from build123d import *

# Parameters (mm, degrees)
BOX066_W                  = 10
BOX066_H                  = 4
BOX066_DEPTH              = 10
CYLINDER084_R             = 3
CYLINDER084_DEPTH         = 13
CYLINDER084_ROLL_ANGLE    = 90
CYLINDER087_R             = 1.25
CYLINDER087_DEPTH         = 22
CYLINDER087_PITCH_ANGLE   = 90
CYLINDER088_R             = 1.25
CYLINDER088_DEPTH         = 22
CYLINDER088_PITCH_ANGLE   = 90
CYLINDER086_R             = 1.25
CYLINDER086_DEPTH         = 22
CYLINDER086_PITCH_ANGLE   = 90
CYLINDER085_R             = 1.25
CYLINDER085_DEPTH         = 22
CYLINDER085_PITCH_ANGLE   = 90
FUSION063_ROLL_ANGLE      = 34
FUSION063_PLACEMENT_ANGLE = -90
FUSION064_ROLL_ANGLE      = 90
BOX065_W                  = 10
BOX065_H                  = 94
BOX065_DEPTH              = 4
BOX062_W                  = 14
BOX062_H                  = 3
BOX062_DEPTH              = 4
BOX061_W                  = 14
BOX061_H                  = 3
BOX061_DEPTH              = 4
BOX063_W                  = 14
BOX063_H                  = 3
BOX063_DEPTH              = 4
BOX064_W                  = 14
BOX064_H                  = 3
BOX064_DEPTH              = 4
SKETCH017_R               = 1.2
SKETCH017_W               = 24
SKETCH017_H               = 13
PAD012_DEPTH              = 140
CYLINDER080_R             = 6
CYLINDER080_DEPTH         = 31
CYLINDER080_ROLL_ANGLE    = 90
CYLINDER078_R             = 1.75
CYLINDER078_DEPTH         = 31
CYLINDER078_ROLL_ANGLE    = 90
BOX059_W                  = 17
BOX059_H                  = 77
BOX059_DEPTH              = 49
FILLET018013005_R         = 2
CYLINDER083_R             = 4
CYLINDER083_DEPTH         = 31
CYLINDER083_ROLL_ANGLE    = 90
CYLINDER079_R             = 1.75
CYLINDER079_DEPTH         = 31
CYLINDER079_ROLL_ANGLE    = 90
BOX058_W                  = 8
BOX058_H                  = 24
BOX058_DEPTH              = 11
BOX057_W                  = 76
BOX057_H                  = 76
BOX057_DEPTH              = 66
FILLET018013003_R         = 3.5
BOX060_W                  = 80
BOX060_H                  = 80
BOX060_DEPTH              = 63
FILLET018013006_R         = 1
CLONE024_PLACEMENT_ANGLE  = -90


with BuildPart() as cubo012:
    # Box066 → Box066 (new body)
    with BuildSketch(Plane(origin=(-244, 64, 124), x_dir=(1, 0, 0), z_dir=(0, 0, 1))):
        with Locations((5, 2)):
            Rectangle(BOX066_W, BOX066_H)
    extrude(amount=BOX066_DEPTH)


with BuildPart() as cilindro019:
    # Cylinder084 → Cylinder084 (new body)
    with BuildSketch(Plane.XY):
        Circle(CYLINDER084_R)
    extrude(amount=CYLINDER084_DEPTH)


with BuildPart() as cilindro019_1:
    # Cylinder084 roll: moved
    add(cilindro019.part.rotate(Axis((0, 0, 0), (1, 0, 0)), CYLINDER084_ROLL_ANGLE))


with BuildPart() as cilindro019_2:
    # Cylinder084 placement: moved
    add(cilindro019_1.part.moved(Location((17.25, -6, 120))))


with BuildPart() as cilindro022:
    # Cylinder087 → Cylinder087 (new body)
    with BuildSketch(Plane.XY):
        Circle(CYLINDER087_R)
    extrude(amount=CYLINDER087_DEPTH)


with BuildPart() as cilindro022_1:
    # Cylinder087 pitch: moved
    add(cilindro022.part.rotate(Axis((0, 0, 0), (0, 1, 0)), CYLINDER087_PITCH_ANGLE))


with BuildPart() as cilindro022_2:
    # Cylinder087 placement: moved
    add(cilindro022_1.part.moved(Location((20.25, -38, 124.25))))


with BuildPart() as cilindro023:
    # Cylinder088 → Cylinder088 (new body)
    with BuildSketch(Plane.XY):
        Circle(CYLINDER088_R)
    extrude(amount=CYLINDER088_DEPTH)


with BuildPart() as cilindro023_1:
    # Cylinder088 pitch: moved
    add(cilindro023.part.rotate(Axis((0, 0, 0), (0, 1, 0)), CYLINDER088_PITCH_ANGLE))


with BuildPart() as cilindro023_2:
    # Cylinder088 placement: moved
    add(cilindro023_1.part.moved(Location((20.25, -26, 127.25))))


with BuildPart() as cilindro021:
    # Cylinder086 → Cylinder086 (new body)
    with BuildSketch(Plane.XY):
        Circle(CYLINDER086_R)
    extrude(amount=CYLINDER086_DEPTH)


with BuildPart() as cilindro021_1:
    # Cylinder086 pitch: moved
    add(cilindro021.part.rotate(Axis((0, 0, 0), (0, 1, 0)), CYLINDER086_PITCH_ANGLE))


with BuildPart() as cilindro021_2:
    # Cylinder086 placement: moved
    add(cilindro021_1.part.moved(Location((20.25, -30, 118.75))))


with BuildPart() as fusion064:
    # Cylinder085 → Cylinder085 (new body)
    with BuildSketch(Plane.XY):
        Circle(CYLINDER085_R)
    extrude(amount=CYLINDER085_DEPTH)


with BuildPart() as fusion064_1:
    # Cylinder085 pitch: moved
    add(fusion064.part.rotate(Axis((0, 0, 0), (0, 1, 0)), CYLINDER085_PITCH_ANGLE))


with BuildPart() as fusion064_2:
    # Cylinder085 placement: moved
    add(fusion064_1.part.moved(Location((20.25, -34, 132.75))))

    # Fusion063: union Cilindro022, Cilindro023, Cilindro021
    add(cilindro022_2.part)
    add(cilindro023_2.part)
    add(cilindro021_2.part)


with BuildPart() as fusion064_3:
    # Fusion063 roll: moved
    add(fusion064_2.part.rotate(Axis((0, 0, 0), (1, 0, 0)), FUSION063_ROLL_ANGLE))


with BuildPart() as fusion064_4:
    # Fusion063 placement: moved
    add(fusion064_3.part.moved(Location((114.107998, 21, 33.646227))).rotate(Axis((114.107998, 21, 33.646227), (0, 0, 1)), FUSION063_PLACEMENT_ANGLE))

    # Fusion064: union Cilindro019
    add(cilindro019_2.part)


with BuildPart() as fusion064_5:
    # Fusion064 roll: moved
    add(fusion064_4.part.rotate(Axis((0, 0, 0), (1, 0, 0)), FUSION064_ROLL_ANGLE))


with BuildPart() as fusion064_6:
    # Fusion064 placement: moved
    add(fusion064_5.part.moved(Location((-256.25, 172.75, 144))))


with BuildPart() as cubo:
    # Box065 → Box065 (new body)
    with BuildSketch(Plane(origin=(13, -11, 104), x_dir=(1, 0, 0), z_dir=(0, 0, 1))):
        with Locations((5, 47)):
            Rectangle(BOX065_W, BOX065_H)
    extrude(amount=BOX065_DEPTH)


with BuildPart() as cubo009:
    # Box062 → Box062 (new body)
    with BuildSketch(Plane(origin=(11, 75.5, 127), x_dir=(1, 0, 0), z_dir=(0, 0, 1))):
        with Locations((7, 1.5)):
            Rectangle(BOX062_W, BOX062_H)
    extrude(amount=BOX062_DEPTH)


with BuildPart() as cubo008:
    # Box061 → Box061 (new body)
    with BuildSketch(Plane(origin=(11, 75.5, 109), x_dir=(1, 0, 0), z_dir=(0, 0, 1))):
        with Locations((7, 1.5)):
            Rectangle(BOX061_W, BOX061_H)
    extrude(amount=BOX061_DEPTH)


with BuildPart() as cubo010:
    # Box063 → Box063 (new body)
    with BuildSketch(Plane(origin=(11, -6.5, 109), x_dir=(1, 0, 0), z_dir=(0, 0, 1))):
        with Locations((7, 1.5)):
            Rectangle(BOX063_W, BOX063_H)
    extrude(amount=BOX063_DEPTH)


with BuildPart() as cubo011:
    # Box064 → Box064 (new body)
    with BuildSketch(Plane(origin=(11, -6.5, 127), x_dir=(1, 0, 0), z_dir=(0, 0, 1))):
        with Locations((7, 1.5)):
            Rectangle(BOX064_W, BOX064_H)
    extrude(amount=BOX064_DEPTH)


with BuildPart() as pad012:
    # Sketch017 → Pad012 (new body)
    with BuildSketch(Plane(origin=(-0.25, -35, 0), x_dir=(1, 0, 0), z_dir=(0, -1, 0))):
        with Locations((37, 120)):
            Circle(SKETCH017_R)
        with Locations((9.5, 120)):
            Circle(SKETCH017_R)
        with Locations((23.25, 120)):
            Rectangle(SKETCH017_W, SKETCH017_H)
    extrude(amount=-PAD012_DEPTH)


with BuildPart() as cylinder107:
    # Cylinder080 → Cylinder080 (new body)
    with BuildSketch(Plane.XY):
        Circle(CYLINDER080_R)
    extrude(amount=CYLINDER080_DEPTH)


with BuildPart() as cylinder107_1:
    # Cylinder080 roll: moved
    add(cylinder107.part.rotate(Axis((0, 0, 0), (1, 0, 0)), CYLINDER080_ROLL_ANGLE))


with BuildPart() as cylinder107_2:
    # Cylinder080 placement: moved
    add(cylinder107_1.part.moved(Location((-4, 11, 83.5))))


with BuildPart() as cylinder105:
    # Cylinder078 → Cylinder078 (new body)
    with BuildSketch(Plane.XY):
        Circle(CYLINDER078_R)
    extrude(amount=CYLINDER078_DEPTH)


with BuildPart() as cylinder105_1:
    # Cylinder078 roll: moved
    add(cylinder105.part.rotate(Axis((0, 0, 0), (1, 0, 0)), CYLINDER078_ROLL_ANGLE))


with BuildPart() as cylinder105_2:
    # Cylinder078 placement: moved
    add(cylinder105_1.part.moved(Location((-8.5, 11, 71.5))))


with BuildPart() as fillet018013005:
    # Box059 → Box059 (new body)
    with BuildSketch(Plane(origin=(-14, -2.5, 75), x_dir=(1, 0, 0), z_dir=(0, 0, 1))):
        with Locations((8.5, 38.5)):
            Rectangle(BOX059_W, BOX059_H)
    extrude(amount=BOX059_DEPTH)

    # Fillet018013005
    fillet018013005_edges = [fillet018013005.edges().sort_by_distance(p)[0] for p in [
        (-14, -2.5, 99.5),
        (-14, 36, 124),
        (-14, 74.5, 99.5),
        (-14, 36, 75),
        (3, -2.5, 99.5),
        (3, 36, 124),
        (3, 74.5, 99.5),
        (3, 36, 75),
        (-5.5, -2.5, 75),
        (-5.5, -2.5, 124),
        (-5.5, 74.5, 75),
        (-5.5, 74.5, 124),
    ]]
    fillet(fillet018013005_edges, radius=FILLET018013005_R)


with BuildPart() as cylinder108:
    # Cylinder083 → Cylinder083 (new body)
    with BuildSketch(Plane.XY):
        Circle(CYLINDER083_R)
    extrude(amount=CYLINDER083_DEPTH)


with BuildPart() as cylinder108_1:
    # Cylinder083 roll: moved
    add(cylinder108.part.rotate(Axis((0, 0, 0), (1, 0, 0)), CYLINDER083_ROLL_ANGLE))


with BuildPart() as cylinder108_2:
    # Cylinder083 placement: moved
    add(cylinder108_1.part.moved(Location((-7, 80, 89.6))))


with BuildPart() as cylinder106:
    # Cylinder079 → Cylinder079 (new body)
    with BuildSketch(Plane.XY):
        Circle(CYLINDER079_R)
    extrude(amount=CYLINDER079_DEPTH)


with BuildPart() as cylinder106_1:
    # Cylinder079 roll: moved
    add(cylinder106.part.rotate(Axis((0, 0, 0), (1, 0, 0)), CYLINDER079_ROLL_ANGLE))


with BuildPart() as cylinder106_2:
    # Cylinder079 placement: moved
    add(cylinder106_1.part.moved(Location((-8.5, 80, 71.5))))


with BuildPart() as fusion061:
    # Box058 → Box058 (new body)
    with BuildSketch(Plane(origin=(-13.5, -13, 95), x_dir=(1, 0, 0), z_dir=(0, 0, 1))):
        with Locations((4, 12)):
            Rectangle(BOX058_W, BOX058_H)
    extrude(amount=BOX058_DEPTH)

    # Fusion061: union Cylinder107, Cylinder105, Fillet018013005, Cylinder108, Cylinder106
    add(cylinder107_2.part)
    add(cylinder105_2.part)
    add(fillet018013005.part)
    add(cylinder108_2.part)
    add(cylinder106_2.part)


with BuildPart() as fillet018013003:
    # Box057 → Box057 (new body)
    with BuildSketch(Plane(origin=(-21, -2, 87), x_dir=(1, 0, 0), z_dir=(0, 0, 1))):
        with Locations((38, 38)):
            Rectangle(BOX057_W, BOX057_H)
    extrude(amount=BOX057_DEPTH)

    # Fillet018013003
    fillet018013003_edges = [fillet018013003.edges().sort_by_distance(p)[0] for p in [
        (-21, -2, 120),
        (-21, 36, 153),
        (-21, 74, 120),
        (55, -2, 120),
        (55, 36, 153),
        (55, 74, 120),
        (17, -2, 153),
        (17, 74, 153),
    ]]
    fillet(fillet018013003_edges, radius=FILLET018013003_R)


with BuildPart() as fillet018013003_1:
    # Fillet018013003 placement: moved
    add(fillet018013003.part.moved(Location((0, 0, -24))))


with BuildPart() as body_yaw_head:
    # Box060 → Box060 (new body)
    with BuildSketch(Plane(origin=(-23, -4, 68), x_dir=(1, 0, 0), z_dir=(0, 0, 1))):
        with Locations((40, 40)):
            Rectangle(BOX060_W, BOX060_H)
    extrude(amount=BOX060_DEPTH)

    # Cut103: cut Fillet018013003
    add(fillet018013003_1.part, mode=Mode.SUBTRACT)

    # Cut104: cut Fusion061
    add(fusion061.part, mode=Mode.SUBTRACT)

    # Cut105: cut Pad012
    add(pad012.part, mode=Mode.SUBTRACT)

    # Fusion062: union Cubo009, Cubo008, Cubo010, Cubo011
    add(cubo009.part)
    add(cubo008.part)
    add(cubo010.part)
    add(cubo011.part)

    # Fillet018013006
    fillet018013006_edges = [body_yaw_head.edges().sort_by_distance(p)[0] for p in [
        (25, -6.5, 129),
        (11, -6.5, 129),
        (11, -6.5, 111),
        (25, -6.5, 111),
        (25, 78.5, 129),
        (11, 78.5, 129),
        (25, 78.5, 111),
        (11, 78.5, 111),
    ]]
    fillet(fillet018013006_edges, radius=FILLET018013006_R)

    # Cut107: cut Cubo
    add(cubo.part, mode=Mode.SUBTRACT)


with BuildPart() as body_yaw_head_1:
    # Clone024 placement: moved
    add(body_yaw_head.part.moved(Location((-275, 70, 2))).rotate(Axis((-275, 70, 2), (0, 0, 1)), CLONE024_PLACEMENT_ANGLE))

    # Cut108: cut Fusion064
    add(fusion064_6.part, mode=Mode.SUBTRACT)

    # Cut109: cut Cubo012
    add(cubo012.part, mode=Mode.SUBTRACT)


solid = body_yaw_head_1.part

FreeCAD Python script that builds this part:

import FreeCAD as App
import Part
import Sketcher
from FreeCAD import Vector


def edges_at(feature, points):
    """Names of the edges that pass closest to the given points."""
    edges = feature.Shape.Edges
    near = lambda p: min(range(len(edges)), key=lambda i: edges[i].distToShape(Part.Vertex(*p))[0])
    return sorted({f"Edge{near(p) + 1}" for p in points})


def add_polygon(sketch, points):
    """Adds a closed chain of lines whose ends are joined by coincident constraints."""
    first, n = sketch.GeometryCount, len(points)
    for a, b in zip(points, points[1:] + points[:1]):
        sketch.addGeometry(Part.LineSegment(App.Vector(*a, 0), App.Vector(*b, 0)), False)
    for i in range(n):
        sketch.addConstraint(Sketcher.Constraint("Coincident", first + i, 2, first + (i + 1) % n, 1))

doc = App.newDocument("Part")
body = doc.addObject("PartDesign::Body", "Body")

# Sketch on XY plane
sketch1 = body.newObject("Sketcher::SketchObject", "Sketch")
sketch1.AttachmentSupport = (doc.getObject("XY_Plane"), [""])
sketch1.MapMode = "FlatFace"
sketch1.AttachmentOffset = App.Placement(Vector(0, 0, 124), App.Rotation())
add_polygon(sketch1, [(-244, 68), (-244, 64), (-234, 64), (-234, 68)])  # lines 0-3
sketch1.addConstraint(Sketcher.Constraint("Vertical", 0))
sketch1.addConstraint(Sketcher.Constraint("Horizontal", 1))
sketch1.addConstraint(Sketcher.Constraint("Vertical", 2))
sketch1.addConstraint(Sketcher.Constraint("Horizontal", 3))
sketch1.addConstraint(Sketcher.Constraint("DistanceX", 1, 1, 1, 2, 10.0))
sketch1.addConstraint(Sketcher.Constraint("DistanceY", 0, 2, 0, 1, 4.0))
sketch1.addConstraint(Sketcher.Constraint("DistanceX", 0, 2, -1, 1, 244.0))
sketch1.addConstraint(Sketcher.Constraint("DistanceY", -1, 1, 0, 2, 64.0))
pad1 = body.newObject("PartDesign::Pad", "Pad")
pad1.Profile = sketch1
pad1.Length = 10
body2 = doc.addObject("PartDesign::Body", "Body001")

# Sketch on XY plane
sketch2 = body2.newObject("Sketcher::SketchObject", "Sketch001")
sketch2.AttachmentSupport = (doc.getObject("XY_Plane001"), [""])
sketch2.MapMode = "FlatFace"
sketch2.addGeometry(Part.Circle(Vector(0, 0, 0), Vector(0, 0, 1), 3), False)
sketch2.addConstraint(Sketcher.Constraint("Coincident", 0, 3, -1, 1))
sketch2.addConstraint(Sketcher.Constraint("Diameter", 0, 6.0))
pad2 = body2.newObject("PartDesign::Pad", "Pad001")
pad2.Profile = sketch2
pad2.Length = 13
body3 = doc.addObject("PartDesign::Body", "Body002")
doc.recompute()

body2.Placement = App.Placement(Vector(0, 0, 0), App.Rotation(Vector(1, 0, 0), 90))
boolean = body3.newObject("PartDesign::Boolean", "Boolean")
boolean.Type = "Fuse"
boolean.addObjects([body2])
body4 = doc.addObject("PartDesign::Body", "Body003")
doc.recompute()

body3.Placement = App.Placement(Vector(17.25, -6, 120), App.Rotation(Vector(0, 0, 1), 0))
boolean2 = body4.newObject("PartDesign::Boolean", "Boolean001")
boolean2.Type = "Fuse"
boolean2.addObjects([body3])
body5 = doc.addObject("PartDesign::Body", "Body004")

# Sketch on XY plane
sketch3 = body5.newObject("Sketcher::SketchObject", "Sketch002")
sketch3.AttachmentSupport = (doc.getObject("XY_Plane004"), [""])
sketch3.MapMode = "FlatFace"
sketch3.addGeometry(Part.Circle(Vector(0, 0, 0), Vector(0, 0, 1), 1.2), False)
sketch3.addConstraint(Sketcher.Constraint("Coincident", 0, 3, -1, 1))
sketch3.addConstraint(Sketcher.Constraint("Diameter", 0, 2.5))
pad3 = body5.newObject("PartDesign::Pad", "Pad002")
pad3.Profile = sketch3
pad3.Length = 22
body6 = doc.addObject("PartDesign::Body", "Body005")
doc.recompute()

body5.Placement = App.Placement(Vector(0, 0, 0), App.Rotation(Vector(0, 1, 0), 90))
boolean3 = body6.newObject("PartDesign::Boolean", "Boolean002")
boolean3.Type = "Fuse"
boolean3.addObjects([body5])
body7 = doc.addObject("PartDesign::Body", "Body006")
doc.recompute()

body6.Placement = App.Placement(Vector(20.25, -38, 124.25), App.Rotation(Vector(0, 0, 1), 0))
boolean4 = body7.newObject("PartDesign::Boolean", "Boolean003")
boolean4.Type = "Fuse"
boolean4.addObjects([body6])
body8 = doc.addObject("PartDesign::Body", "Body007")

# Sketch on XY plane
sketch4 = body8.newObject("Sketcher::SketchObject", "Sketch003")
sketch4.AttachmentSupport = (doc.getObject("XY_Plane007"), [""])
sketch4.MapMode = "FlatFace"
sketch4.addGeometry(Part.Circle(Vector(0, 0, 0), Vector(0, 0, 1), 1.2), False)
sketch4.addConstraint(Sketcher.Constraint("Coincident", 0, 3, -1, 1))
sketch4.addConstraint(Sketcher.Constraint("Diameter", 0, 2.5))
pad4 = body8.newObject("PartDesign::Pad", "Pad003")
pad4.Profile = sketch4
pad4.Length = 22
body9 = doc.addObject("PartDesign::Body", "Body008")
doc.recompute()

body8.Placement = App.Placement(Vector(0, 0, 0), App.Rotation(Vector(0, 1, 0), 90))
boolean5 = body9.newObject("PartDesign::Boolean", "Boolean004")
boolean5.Type = "Fuse"
boolean5.addObjects([body8])
body10 = doc.addObject("PartDesign::Body", "Body009")
doc.recompute()

body9.Placement = App.Placement(Vector(20.25, -26, 127.25), App.Rotation(Vector(0, 0, 1), 0))
boolean6 = body10.newObject("PartDesign::Boolean", "Boolean005")
boolean6.Type = "Fuse"
boolean6.addObjects([body9])
body11 = doc.addObject("PartDesign::Body", "Body010")

# Sketch on XY plane
sketch5 = body11.newObject("Sketcher::SketchObject", "Sketch004")
sketch5.AttachmentSupport = (doc.getObject("XY_Plane010"), [""])
sketch5.MapMode = "FlatFace"
sketch5.addGeometry(Part.Circle(Vector(0, 0, 0), Vector(0, 0, 1), 1.2), False)
sketch5.addConstraint(Sketcher.Constraint("Coincident", 0, 3, -1, 1))
sketch5.addConstraint(Sketcher.Constraint("Diameter", 0, 2.5))
pad5 = body11.newObject("PartDesign::Pad", "Pad004")
pad5.Profile = sketch5
pad5.Length = 22
body12 = doc.addObject("PartDesign::Body", "Body011")
doc.recompute()

body11.Placement = App.Placement(Vector(0, 0, 0), App.Rotation(Vector(0, 1, 0), 90))
boolean7 = body12.newObject("PartDesign::Boolean", "Boolean006")
boolean7.Type = "Fuse"
boolean7.addObjects([body11])
body13 = doc.addObject("PartDesign::Body", "Body012")
doc.recompute()

body12.Placement = App.Placement(Vector(20.25, -30, 118.75), App.Rotation(Vector(0, 0, 1), 0))
boolean8 = body13.newObject("PartDesign::Boolean", "Boolean007")
boolean8.Type = "Fuse"
boolean8.addObjects([body12])
body14 = doc.addObject("PartDesign::Body", "Body013")

# Sketch on XY plane
sketch6 = body14.newObject("Sketcher::SketchObject", "Sketch005")
sketch6.AttachmentSupport = (doc.getObject("XY_Plane013"), [""])
sketch6.MapMode = "FlatFace"
sketch6.addGeometry(Part.Circle(Vector(0, 0, 0), Vector(0, 0, 1), 1.2), False)
sketch6.addConstraint(Sketcher.Constraint("Coincident", 0, 3, -1, 1))
sketch6.addConstraint(Sketcher.Constraint("Diameter", 0, 2.5))
pad6 = body14.newObject("PartDesign::Pad", "Pad005")
pad6.Profile = sketch6
pad6.Length = 22
body15 = doc.addObject("PartDesign::Body", "Body014")
doc.recompute()

body14.Placement = App.Placement(Vector(0, 0, 0), App.Rotation(Vector(0, 1, 0), 90))
boolean9 = body15.newObject("PartDesign::Boolean", "Boolean008")
boolean9.Type = "Fuse"
boolean9.addObjects([body14])
body16 = doc.addObject("PartDesign::Body", "Body015")
body16.AllowCompound = True
doc.recompute()

body15.Placement = App.Placement(Vector(20.25, -34, 132.75), App.Rotation(Vector(0, 0, 1), 0))
boolean10 = body16.newObject("PartDesign::Boolean", "Boolean009")
boolean10.Type = "Fuse"
boolean10.addObjects([body15])
doc.recompute()

boolean11 = body16.newObject("PartDesign::Boolean", "Boolean010")
boolean11.Type = "Fuse"
boolean11.addObjects([body7])
doc.recompute()

boolean12 = body16.newObject("PartDesign::Boolean", "Boolean011")
boolean12.Type = "Fuse"
boolean12.addObjects([body10])
doc.recompute()

boolean13 = body16.newObject("PartDesign::Boolean", "Boolean012")
boolean13.Type = "Fuse"
boolean13.addObjects([body13])
body17 = doc.addObject("PartDesign::Body", "Body016")
body17.AllowCompound = True
doc.recompute()

body16.Placement = App.Placement(Vector(0, 0, 0), App.Rotation(Vector(1, 0, 0), 34))
boolean14 = body17.newObject("PartDesign::Boolean", "Boolean013")
boolean14.Type = "Fuse"
boolean14.addObjects([body16])
body18 = doc.addObject("PartDesign::Body", "Body017")
body18.AllowCompound = True
doc.recompute()

body17.Placement = App.Placement(Vector(114.107998, 21, 33.646227), App.Rotation(Vector(0, 0, 1), 270))
boolean15 = body18.newObject("PartDesign::Boolean", "Boolean014")
boolean15.Type = "Fuse"
boolean15.addObjects([body17])
doc.recompute()

boolean16 = body18.newObject("PartDesign::Boolean", "Boolean015")
boolean16.Type = "Fuse"
boolean16.addObjects([body4])
body19 = doc.addObject("PartDesign::Body", "Body018")
body19.AllowCompound = True
doc.recompute()

body18.Placement = App.Placement(Vector(0, 0, 0), App.Rotation(Vector(1, 0, 0), 90))
boolean17 = body19.newObject("PartDesign::Boolean", "Boolean016")
boolean17.Type = "Fuse"
boolean17.addObjects([body18])
body20 = doc.addObject("PartDesign::Body", "Body019")
body20.AllowCompound = True
doc.recompute()

body19.Placement = App.Placement(Vector(-256.25, 172.75, 144), App.Rotation(Vector(0, 0, 1), 0))
boolean18 = body20.newObject("PartDesign::Boolean", "Boolean017")
boolean18.Type = "Fuse"
boolean18.addObjects([body19])
body21 = doc.addObject("PartDesign::Body", "Body020")

# Sketch on XY plane
sketch7 = body21.newObject("Sketcher::SketchObject", "Sketch006")
sketch7.AttachmentSupport = (doc.getObject("XY_Plane020"), [""])
sketch7.MapMode = "FlatFace"
sketch7.AttachmentOffset = App.Placement(Vector(0, 0, 104), App.Rotation())
add_polygon(sketch7, [(13, 83), (13, -11), (23, -11), (23, 83)])  # lines 0-3
sketch7.addConstraint(Sketcher.Constraint("Vertical", 0))
sketch7.addConstraint(Sketcher.Constraint("Horizontal", 1))
sketch7.addConstraint(Sketcher.Constraint("Vertical", 2))
sketch7.addConstraint(Sketcher.Constraint("Horizontal", 3))
sketch7.addConstraint(Sketcher.Constraint("DistanceX", 1, 1, 1, 2, 10.0))
sketch7.addConstraint(Sketcher.Constraint("DistanceY", 0, 2, 0, 1, 94.0))
sketch7.addConstraint(Sketcher.Constraint("DistanceX", -1, 1, 0, 2, 13.0))
sketch7.addConstraint(Sketcher.Constraint("DistanceY", 0, 2, -1, 1, 11.0))
pad7 = body21.newObject("PartDesign::Pad", "Pad006")
pad7.Profile = sketch7
pad7.Length = 4
body22 = doc.addObject("PartDesign::Body", "Body021")

# Sketch on XY plane
sketch8 = body22.newObject("Sketcher::SketchObject", "Sketch007")
sketch8.AttachmentSupport = (doc.getObject("XY_Plane021"), [""])
sketch8.MapMode = "FlatFace"
sketch8.AttachmentOffset = App.Placement(Vector(0, 0, 127), App.Rotation())
add_polygon(sketch8, [(11, 78.5), (11, 75.5), (25, 75.5), (25, 78.5)])  # lines 0-3
sketch8.addConstraint(Sketcher.Constraint("Vertical", 0))
sketch8.addConstraint(Sketcher.Constraint("Horizontal", 1))
sketch8.addConstraint(Sketcher.Constraint("Vertical", 2))
sketch8.addConstraint(Sketcher.Constraint("Horizontal", 3))
sketch8.addConstraint(Sketcher.Constraint("DistanceX", 1, 1, 1, 2, 14.0))
sketch8.addConstraint(Sketcher.Constraint("DistanceY", 0, 2, 0, 1, 3.0))
sketch8.addConstraint(Sketcher.Constraint("DistanceX", -1, 1, 0, 2, 11.0))
sketch8.addConstraint(Sketcher.Constraint("DistanceY", -1, 1, 0, 2, 75.5))
pad8 = body22.newObject("PartDesign::Pad", "Pad007")
pad8.Profile = sketch8
pad8.Length = 4
body23 = doc.addObject("PartDesign::Body", "Body022")

# Sketch on XY plane
sketch9 = body23.newObject("Sketcher::SketchObject", "Sketch008")
sketch9.AttachmentSupport = (doc.getObject("XY_Plane022"), [""])
sketch9.MapMode = "FlatFace"
sketch9.AttachmentOffset = App.Placement(Vector(0, 0, 109), App.Rotation())
add_polygon(sketch9, [(11, 78.5), (11, 75.5), (25, 75.5), (25, 78.5)])  # lines 0-3
sketch9.addConstraint(Sketcher.Constraint("Vertical", 0))
sketch9.addConstraint(Sketcher.Constraint("Horizontal", 1))
sketch9.addConstraint(Sketcher.Constraint("Vertical", 2))
sketch9.addConstraint(Sketcher.Constraint("Horizontal", 3))
sketch9.addConstraint(Sketcher.Constraint("DistanceX", 1, 1, 1, 2, 14.0))
sketch9.addConstraint(Sketcher.Constraint("DistanceY", 0, 2, 0, 1, 3.0))
sketch9.addConstraint(Sketcher.Constraint("DistanceX", -1, 1, 0, 2, 11.0))
sketch9.addConstraint(Sketcher.Constraint("DistanceY", -1, 1, 0, 2, 75.5))
pad9 = body23.newObject("PartDesign::Pad", "Pad008")
pad9.Profile = sketch9
pad9.Length = 4
body24 = doc.addObject("PartDesign::Body", "Body023")

# Sketch on XY plane
sketch10 = body24.newObject("Sketcher::SketchObject", "Sketch009")
sketch10.AttachmentSupport = (doc.getObject("XY_Plane023"), [""])
sketch10.MapMode = "FlatFace"
sketch10.AttachmentOffset = App.Placement(Vector(0, 0, 109), App.Rotation())
add_polygon(sketch10, [(11, -3.5), (11, -6.5), (25, -6.5), (25, -3.5)])  # lines 0-3
sketch10.addConstraint(Sketcher.Constraint("Vertical", 0))
sketch10.addConstraint(Sketcher.Constraint("Horizontal", 1))
sketch10.addConstraint(Sketcher.Constraint("Vertical", 2))
sketch10.addConstraint(Sketcher.Constraint("Horizontal", 3))
sketch10.addConstraint(Sketcher.Constraint("DistanceX", 1, 1, 1, 2, 14.0))
sketch10.addConstraint(Sketcher.Constraint("DistanceY", 0, 2, 0, 1, 3.0))
sketch10.addConstraint(Sketcher.Constraint("DistanceX", -1, 1, 0, 2, 11.0))
sketch10.addConstraint(Sketcher.Constraint("DistanceY", 0, 2, -1, 1, 6.5))
pad10 = body24.newObject("PartDesign::Pad", "Pad009")
pad10.Profile = sketch10
pad10.Length = 4
body25 = doc.addObject("PartDesign::Body", "Body024")

# Sketch on XY plane
sketch11 = body25.newObject("Sketcher::SketchObject", "Sketch010")
sketch11.AttachmentSupport = (doc.getObject("XY_Plane024"), [""])
sketch11.MapMode = "FlatFace"
sketch11.AttachmentOffset = App.Placement(Vector(0, 0, 127), App.Rotation())
add_polygon(sketch11, [(11, -3.5), (11, -6.5), (25, -6.5), (25, -3.5)])  # lines 0-3
sketch11.addConstraint(Sketcher.Constraint("Vertical", 0))
sketch11.addConstraint(Sketcher.Constraint("Horizontal", 1))
sketch11.addConstraint(Sketcher.Constraint("Vertical", 2))
sketch11.addConstraint(Sketcher.Constraint("Horizontal", 3))
sketch11.addConstraint(Sketcher.Constraint("DistanceX", 1, 1, 1, 2, 14.0))
sketch11.addConstraint(Sketcher.Constraint("DistanceY", 0, 2, 0, 1, 3.0))
sketch11.addConstraint(Sketcher.Constraint("DistanceX", -1, 1, 0, 2, 11.0))
sketch11.addConstraint(Sketcher.Constraint("DistanceY", 0, 2, -1, 1, 6.5))
pad11 = body25.newObject("PartDesign::Pad", "Pad010")
pad11.Profile = sketch11
pad11.Length = 4
body26 = doc.addObject("PartDesign::Body", "Body025")
body26.AllowCompound = True

# Sketch on XZ plane
sketch12 = body26.newObject("Sketcher::SketchObject", "Sketch011")
sketch12.AttachmentSupport = (doc.getObject("XZ_Plane025"), [""])
sketch12.MapMode = "FlatFace"
sketch12.AttachmentOffset = App.Placement(Vector(0, 0, 35), App.Rotation())
sketch12.addGeometry(Part.Circle(Vector(36.8, 120, 0), Vector(0, 0, 1), 1.2), False)  # 0
sketch12.addGeometry(Part.Circle(Vector(9.2, 120, 0), Vector(0, 0, 1), 1.2), False)  # 1
add_polygon(sketch12, [(11, 126.5), (11, 113.5), (35, 113.5), (35, 126.5)])  # lines 2-5
sketch12.addConstraint(Sketcher.Constraint("Vertical", 2))
sketch12.addConstraint(Sketcher.Constraint("Horizontal", 3))
sketch12.addConstraint(Sketcher.Constraint("Vertical", 4))
sketch12.addConstraint(Sketcher.Constraint("Horizontal", 5))
sketch12.addConstraint(Sketcher.Constraint("Equal", 0, 1))
sketch12.addConstraint(Sketcher.Constraint("Horizontal", 0, 3, 1, 3))
sketch12.addConstraint(Sketcher.Constraint("Diameter", 0, 2.4))
sketch12.addConstraint(Sketcher.Constraint("DistanceX", 3, 1, 3, 2, 24.0))
sketch12.addConstraint(Sketcher.Constraint("DistanceY", 2, 2, 2, 1, 13.0))
sketch12.addConstraint(Sketcher.Constraint("DistanceY", -1, 1, 0, 3, 120.0))
sketch12.addConstraint(Sketcher.Constraint("DistanceX", -1, 1, 2, 2, 11.0))
sketch12.addConstraint(Sketcher.Constraint("DistanceY", -1, 1, 2, 2, 113.5))
sketch12.addConstraint(Sketcher.Constraint("DistanceX", 1, 3, 0, 3, 27.5))
sketch12.addConstraint(Sketcher.Constraint("DistanceX", -1, 1, 0, 3, 36.75))
pad12 = body26.newObject("PartDesign::Pad", "Pad011")
pad12.Profile = sketch12
pad12.Length = 140
pad12.Reversed = True
body27 = doc.addObject("PartDesign::Body", "Body026")

# Sketch on XY plane
sketch13 = body27.newObject("Sketcher::SketchObject", "Sketch012")
sketch13.AttachmentSupport = (doc.getObject("XY_Plane026"), [""])
sketch13.MapMode = "FlatFace"
sketch13.addGeometry(Part.Circle(Vector(0, 0, 0), Vector(0, 0, 1), 6), False)
sketch13.addConstraint(Sketcher.Constraint("Coincident", 0, 3, -1, 1))
sketch13.addConstraint(Sketcher.Constraint("Diameter", 0, 12.0))
pad13 = body27.newObject("PartDesign::Pad", "Pad012")
pad13.Profile = sketch13
pad13.Length = 31
body28 = doc.addObject("PartDesign::Body", "Body027")
doc.recompute()

body27.Placement = App.Placement(Vector(0, 0, 0), App.Rotation(Vector(1, 0, 0), 90))
boolean19 = body28.newObject("PartDesign::Boolean", "Boolean018")
boolean19.Type = "Fuse"
boolean19.addObjects([body27])
body29 = doc.addObject("PartDesign::Body", "Body028")
doc.recompute()

body28.Placement = App.Placement(Vector(-4, 11, 83.5), App.Rotation(Vector(0, 0, 1), 0))
boolean20 = body29.newObject("PartDesign::Boolean", "Boolean019")
boolean20.Type = "Fuse"
boolean20.addObjects([body28])
body30 = doc.addObject("PartDesign::Body", "Body029")

# Sketch on XY plane
sketch14 = body30.newObject("Sketcher::SketchObject", "Sketch013")
sketch14.AttachmentSupport = (doc.getObject("XY_Plane029"), [""])
sketch14.MapMode = "FlatFace"
sketch14.addGeometry(Part.Circle(Vector(0, 0, 0), Vector(0, 0, 1), 1.8), False)
sketch14.addConstraint(Sketcher.Constraint("Coincident", 0, 3, -1, 1))
sketch14.addConstraint(Sketcher.Constraint("Diameter", 0, 3.5))
pad14 = body30.newObject("PartDesign::Pad", "Pad013")
pad14.Profile = sketch14
pad14.Length = 31
body31 = doc.addObject("PartDesign::Body", "Body030")
doc.recompute()

body30.Placement = App.Placement(Vector(0, 0, 0), App.Rotation(Vector(1, 0, 0), 90))
boolean21 = body31.newObject("PartDesign::Boolean", "Boolean020")
boolean21.Type = "Fuse"
boolean21.addObjects([body30])
body32 = doc.addObject("PartDesign::Body", "Body031")
doc.recompute()

body31.Placement = App.Placement(Vector(-8.5, 11, 71.5), App.Rotation(Vector(0, 0, 1), 0))
boolean22 = body32.newObject("PartDesign::Boolean", "Boolean021")
boolean22.Type = "Fuse"
boolean22.addObjects([body31])
body33 = doc.addObject("PartDesign::Body", "Body032")

# Sketch on XY plane
sketch15 = body33.newObject("Sketcher::SketchObject", "Sketch014")
sketch15.AttachmentSupport = (doc.getObject("XY_Plane032"), [""])
sketch15.MapMode = "FlatFace"
sketch15.AttachmentOffset = App.Placement(Vector(0, 0, 75), App.Rotation())
add_polygon(sketch15, [(-14, 74), (-14, -2), (3, -2), (3, 74)])  # lines 0-3
sketch15.addConstraint(Sketcher.Constraint("Vertical", 0))
sketch15.addConstraint(Sketcher.Constraint("Horizontal", 1))
sketch15.addConstraint(Sketcher.Constraint("Vertical", 2))
sketch15.addConstraint(Sketcher.Constraint("Horizontal", 3))
sketch15.addConstraint(Sketcher.Constraint("DistanceX", 1, 1, 1, 2, 17.0))
sketch15.addConstraint(Sketcher.Constraint("DistanceY", 0, 2, 0, 1, 77.0))
sketch15.addConstraint(Sketcher.Constraint("DistanceX", 0, 2, -1, 1, 14.0))
sketch15.addConstraint(Sketcher.Constraint("DistanceY", 0, 2, -1, 1, 2.5))
pad15 = body33.newObject("PartDesign::Pad", "Pad014")
pad15.Profile = sketch15
pad15.Length = 49
doc.recompute()

fillet = body33.newObject("PartDesign::Fillet", "Fillet")
fillet.Base = (pad15, ["Edge1"])
fillet.UseAllEdges = True
fillet.Radius = 2
body34 = doc.addObject("PartDesign::Body", "Body033")

# Sketch on XY plane
sketch16 = body34.newObject("Sketcher::SketchObject", "Sketch015")
sketch16.AttachmentSupport = (doc.getObject("XY_Plane033"), [""])
sketch16.MapMode = "FlatFace"
sketch16.addGeometry(Part.Circle(Vector(0, 0, 0), Vector(0, 0, 1), 4), False)
sketch16.addConstraint(Sketcher.Constraint("Coincident", 0, 3, -1, 1))
sketch16.addConstraint(Sketcher.Constraint("Diameter", 0, 8.0))
pad16 = body34.newObject("PartDesign::Pad", "Pad015")
pad16.Profile = sketch16
pad16.Length = 31
body35 = doc.addObject("PartDesign::Body", "Body034")
doc.recompute()

body34.Placement = App.Placement(Vector(0, 0, 0), App.Rotation(Vector(1, 0, 0), 90))
boolean23 = body35.newObject("PartDesign::Boolean", "Boolean022")
boolean23.Type = "Fuse"
boolean23.addObjects([body34])
body36 = doc.addObject("PartDesign::Body", "Body035")
doc.recompute()

body35.Placement = App.Placement(Vector(-7, 80, 89.6), App.Rotation(Vector(0, 0, 1), 0))
boolean24 = body36.newObject("PartDesign::Boolean", "Boolean023")
boolean24.Type = "Fuse"
boolean24.addObjects([body35])
body37 = doc.addObject("PartDesign::Body", "Body036")

# Sketch on XY plane
sketch17 = body37.newObject("Sketcher::SketchObject", "Sketch016")
sketch17.AttachmentSupport = (doc.getObject("XY_Plane036"), [""])
sketch17.MapMode = "FlatFace"
sketch17.addGeometry(Part.Circle(Vector(0, 0, 0), Vector(0, 0, 1), 1.8), False)
sketch17.addConstraint(Sketcher.Constraint("Coincident", 0, 3, -1, 1))
sketch17.addConstraint(Sketcher.Constraint("Diameter", 0, 3.5))
pad17 = body37.newObject("PartDesign::Pad", "Pad016")
pad17.Profile = sketch17
pad17.Length = 31
body38 = doc.addObject("PartDesign::Body", "Body037")
doc.recompute()

body37.Placement = App.Placement(Vector(0, 0, 0), App.Rotation(Vector(1, 0, 0), 90))
boolean25 = body38.newObject("PartDesign::Boolean", "Boolean024")
boolean25.Type = "Fuse"
boolean25.addObjects([body37])
body39 = doc.addObject("PartDesign::Body", "Body038")
doc.recompute()

body38.Placement = App.Placement(Vector(-8.5, 80, 71.5), App.Rotation(Vector(0, 0, 1), 0))
boolean26 = body39.newObject("PartDesign::Boolean", "Boolean025")
boolean26.Type = "Fuse"
boolean26.addObjects([body38])
body40 = doc.addObject("PartDesign::Body", "Body039")
body40.AllowCompound = True

# Sketch on XY plane
sketch18 = body40.newObject("Sketcher::SketchObject", "Sketch017")
sketch18.AttachmentSupport = (doc.getObject("XY_Plane039"), [""])
sketch18.MapMode = "FlatFace"
sketch18.AttachmentOffset = App.Placement(Vector(0, 0, 95), App.Rotation())
add_polygon(sketch18, [(-14, 11), (-14, -13), (-6, -13), (-6, 11)])  # lines 0-3
sketch18.addConstraint(Sketcher.Constraint("Vertical", 0))
sketch18.addConstraint(Sketcher.Constraint("Horizontal", 1))
sketch18.addConstraint(Sketcher.Constraint("Vertical", 2))
sketch18.addConstraint(Sketcher.Constraint("Horizontal", 3))
sketch18.addConstraint(Sketcher.Constraint("DistanceX", 1, 1, 1, 2, 8.0))
sketch18.addConstraint(Sketcher.Constraint("DistanceY", 0, 2, 0, 1, 24.0))
sketch18.addConstraint(Sketcher.Constraint("DistanceY", 0, 2, -1, 1, 13.0))
sketch18.addConstraint(Sketcher.Constraint("DistanceX", 0, 2, -1, 1, 13.5))
pad18 = body40.newObject("PartDesign::Pad", "Pad017")
pad18.Profile = sketch18
pad18.Length = 11
doc.recompute()

boolean27 = body40.newObject("PartDesign::Boolean", "Boolean026")
boolean27.Type = "Fuse"
boolean27.addObjects([body29])
doc.recompute()

boolean28 = body40.newObject("PartDesign::Boolean", "Boolean027")
boolean28.Type = "Fuse"
boolean28.addObjects([body32])
doc.recompute()

boolean29 = body40.newObject("PartDesign::Boolean", "Boolean028")
boolean29.Type = "Fuse"
boolean29.addObjects([body33])
doc.recompute()

boolean30 = body40.newObject("PartDesign::Boolean", "Boolean029")
boolean30.Type = "Fuse"
boolean30.addObjects([body36])
doc.recompute()

boolean31 = body40.newObject("PartDesign::Boolean", "Boolean030")
boolean31.Type = "Fuse"
boolean31.addObjects([body39])
body41 = doc.addObject("PartDesign::Body", "Body040")

# Sketch on XY plane
sketch19 = body41.newObject("Sketcher::SketchObject", "Sketch018")
sketch19.AttachmentSupport = (doc.getObject("XY_Plane040"), [""])
sketch19.MapMode = "FlatFace"
sketch19.AttachmentOffset = App.Placement(Vector(0, 0, 87), App.Rotation())
add_polygon(sketch19, [(-21, 74), (-21, -2), (55, -2), (55, 74)])  # lines 0-3
sketch19.addConstraint(Sketcher.Constraint("Vertical", 0))
sketch19.addConstraint(Sketcher.Constraint("Horizontal", 1))
sketch19.addConstraint(Sketcher.Constraint("Vertical", 2))
sketch19.addConstraint(Sketcher.Constraint("Horizontal", 3))
sketch19.addConstraint(Sketcher.Constraint("Equal", 3, 0))
sketch19.addConstraint(Sketcher.Constraint("DistanceX", 1, 1, 1, 2, 76.0))
sketch19.addConstraint(Sketcher.Constraint("DistanceX", 0, 2, -1, 1, 21.0))
sketch19.addConstraint(Sketcher.Constraint("DistanceY", 0, 2, -1, 1, 2.0))
pad19 = body41.newObject("PartDesign::Pad", "Pad018")
pad19.Profile = sketch19
pad19.Length = 66
doc.recompute()

fillet2 = body41.newObject("PartDesign::Fillet", "Fillet001")
fillet2.Base = (pad19, edges_at(pad19, [
    (-21, -2, 120),
    (-21, 36, 153),
    (-21, 74, 120),
    (55, -2, 120),
    (55, 36, 153),
    (55, 74, 120),
    (17, -2, 153),
    (17, 74, 153),
]))
fillet2.Radius = 3.5
body42 = doc.addObject("PartDesign::Body", "Body041")
doc.recompute()

body41.Placement = App.Placement(Vector(0, 0, -24), App.Rotation(Vector(0, 0, 1), 0))
boolean32 = body42.newObject("PartDesign::Boolean", "Boolean031")
boolean32.Type = "Fuse"
boolean32.addObjects([body41])
body43 = doc.addObject("PartDesign::Body", "Body042")

# Sketch on XY plane
sketch20 = body43.newObject("Sketcher::SketchObject", "Sketch019")
sketch20.AttachmentSupport = (doc.getObject("XY_Plane042"), [""])
sketch20.MapMode = "FlatFace"
sketch20.AttachmentOffset = App.Placement(Vector(0, 0, 68), App.Rotation())
add_polygon(sketch20, [(-23, 76), (-23, -4), (57, -4), (57, 76)])  # lines 0-3
sketch20.addConstraint(Sketcher.Constraint("Vertical", 0))
sketch20.addConstraint(Sketcher.Constraint("Horizontal", 1))
sketch20.addConstraint(Sketcher.Constraint("Vertical", 2))
sketch20.addConstraint(Sketcher.Constraint("Horizontal", 3))
sketch20.addConstraint(Sketcher.Constraint("Equal", 3, 0))
sketch20.addConstraint(Sketcher.Constraint("DistanceX", 1, 1, 1, 2, 80.0))
sketch20.addConstraint(Sketcher.Constraint("DistanceX", 0, 2, -1, 1, 23.0))
sketch20.addConstraint(Sketcher.Constraint("DistanceY", 0, 2, -1, 1, 4.0))
pad20 = body43.newObject("PartDesign::Pad", "Pad019")
pad20.Profile = sketch20
pad20.Length = 63
doc.recompute()

boolean33 = body43.newObject("PartDesign::Boolean", "Boolean032")
boolean33.Type = "Cut"
boolean33.addObjects([body42])
doc.recompute()

boolean34 = body43.newObject("PartDesign::Boolean", "Boolean033")
boolean34.Type = "Cut"
boolean34.addObjects([body40])
doc.recompute()

boolean35 = body43.newObject("PartDesign::Boolean", "Boolean034")
boolean35.Type = "Cut"
boolean35.addObjects([body26])
doc.recompute()

boolean36 = body43.newObject("PartDesign::Boolean", "Boolean035")
boolean36.Type = "Fuse"
boolean36.addObjects([body22])
doc.recompute()

boolean37 = body43.newObject("PartDesign::Boolean", "Boolean036")
boolean37.Type = "Fuse"
boolean37.addObjects([body23])
doc.recompute()

boolean38 = body43.newObject("PartDesign::Boolean", "Boolean037")
boolean38.Type = "Fuse"
boolean38.addObjects([body24])
doc.recompute()

boolean39 = body43.newObject("PartDesign::Boolean", "Boolean038")
boolean39.Type = "Fuse"
boolean39.addObjects([body25])
doc.recompute()

fillet3 = body43.newObject("PartDesign::Fillet", "Fillet002")
fillet3.Base = (boolean39, edges_at(boolean39, [
    (25, -6.5, 129),
    (11, -6.5, 129),
    (11, -6.5, 111),
    (25, -6.5, 111),
    (25, 78.5, 129),
    (11, 78.5, 129),
    (25, 78.5, 111),
    (11, 78.5, 111),
]))
fillet3.Radius = 1
doc.recompute()

boolean40 = body43.newObject("PartDesign::Boolean", "Boolean039")
boolean40.Type = "Cut"
boolean40.addObjects([body21])
body44 = doc.addObject("PartDesign::Body", "Body043")
doc.recompute()

body43.Placement = App.Placement(Vector(-275, 70, 2), App.Rotation(Vector(0, 0, 1), 270))
boolean41 = body44.newObject("PartDesign::Boolean", "Boolean040")
boolean41.Type = "Fuse"
boolean41.addObjects([body43])
doc.recompute()

boolean42 = body44.newObject("PartDesign::Boolean", "Boolean041")
boolean42.Type = "Cut"
boolean42.addObjects([body20])
doc.recompute()

boolean43 = body44.newObject("PartDesign::Boolean", "Boolean042")
boolean43.Type = "Cut"
boolean43.addObjects([body])

doc.recompute()
